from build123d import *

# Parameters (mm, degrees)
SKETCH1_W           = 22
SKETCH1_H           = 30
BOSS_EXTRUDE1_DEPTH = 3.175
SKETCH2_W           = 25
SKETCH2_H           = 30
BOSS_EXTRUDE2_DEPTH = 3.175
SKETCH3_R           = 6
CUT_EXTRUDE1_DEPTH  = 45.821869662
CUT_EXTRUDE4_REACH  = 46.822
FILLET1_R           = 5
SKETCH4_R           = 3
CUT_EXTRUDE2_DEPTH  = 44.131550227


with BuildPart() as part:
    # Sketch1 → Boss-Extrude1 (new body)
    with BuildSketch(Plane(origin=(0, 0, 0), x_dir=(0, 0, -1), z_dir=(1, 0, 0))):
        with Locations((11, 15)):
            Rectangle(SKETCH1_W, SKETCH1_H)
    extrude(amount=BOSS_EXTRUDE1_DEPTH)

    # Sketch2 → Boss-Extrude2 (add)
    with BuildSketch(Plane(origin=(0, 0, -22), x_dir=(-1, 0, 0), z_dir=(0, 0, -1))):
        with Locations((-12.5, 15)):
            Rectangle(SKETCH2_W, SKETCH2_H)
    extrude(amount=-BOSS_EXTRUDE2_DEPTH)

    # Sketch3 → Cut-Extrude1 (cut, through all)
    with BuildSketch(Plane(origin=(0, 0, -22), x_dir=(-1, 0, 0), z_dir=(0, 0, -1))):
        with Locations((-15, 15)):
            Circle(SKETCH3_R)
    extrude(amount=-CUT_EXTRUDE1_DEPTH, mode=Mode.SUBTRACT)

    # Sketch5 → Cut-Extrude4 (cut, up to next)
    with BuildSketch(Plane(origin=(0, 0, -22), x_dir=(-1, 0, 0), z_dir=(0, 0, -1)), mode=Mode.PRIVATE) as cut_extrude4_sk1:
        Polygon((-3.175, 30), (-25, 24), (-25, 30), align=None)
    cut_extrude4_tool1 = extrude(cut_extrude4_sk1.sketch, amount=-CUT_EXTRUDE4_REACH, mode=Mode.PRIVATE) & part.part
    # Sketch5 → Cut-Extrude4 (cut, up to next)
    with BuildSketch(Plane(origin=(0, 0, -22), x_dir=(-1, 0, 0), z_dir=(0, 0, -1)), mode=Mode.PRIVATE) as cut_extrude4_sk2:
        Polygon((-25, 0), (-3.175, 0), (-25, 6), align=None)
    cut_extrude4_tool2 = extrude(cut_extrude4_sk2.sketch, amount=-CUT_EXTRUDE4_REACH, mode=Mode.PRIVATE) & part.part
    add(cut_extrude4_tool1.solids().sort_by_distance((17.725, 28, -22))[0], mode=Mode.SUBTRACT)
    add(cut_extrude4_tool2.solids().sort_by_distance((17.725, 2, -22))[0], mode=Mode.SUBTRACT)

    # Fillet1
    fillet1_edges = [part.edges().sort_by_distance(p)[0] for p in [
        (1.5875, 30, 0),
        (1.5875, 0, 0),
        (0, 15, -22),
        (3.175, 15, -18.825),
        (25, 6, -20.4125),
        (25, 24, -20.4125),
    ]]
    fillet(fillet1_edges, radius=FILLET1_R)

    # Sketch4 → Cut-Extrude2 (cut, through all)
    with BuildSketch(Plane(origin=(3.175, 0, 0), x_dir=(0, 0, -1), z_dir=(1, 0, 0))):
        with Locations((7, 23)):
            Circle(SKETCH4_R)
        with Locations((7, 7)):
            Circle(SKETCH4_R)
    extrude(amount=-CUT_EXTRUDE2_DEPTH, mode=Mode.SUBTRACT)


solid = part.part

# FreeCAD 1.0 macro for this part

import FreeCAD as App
import Part
import Sketcher
Q = App.Units.Quantity


def edges_at(feature, points):
    """Names of the edges that pass closest to the given points."""
    edges = feature.Shape.Edges
    near = lambda p: min(range(len(edges)), key=lambda i: edges[i].distToShape(Part.Vertex(*p))[0])
    return sorted({f"Edge{near(p) + 1}" for p in points})


def add_polygon(sketch, points):
    """Adds a closed chain of lines whose ends are joined by coincident constraints."""
    first, n = sketch.GeometryCount, len(points)
    for a, b in zip(points, points[1:] + points[:1]):
        sketch.addGeometry(Part.LineSegment(App.Vector(*a, 0), App.Vector(*b, 0)), False)
    for i in range(n):
        sketch.addConstraint(Sketcher.Constraint("Coincident", first + i, 2, first + (i + 1) % n, 1))

doc = App.newDocument("Part")
params = doc.addObject("Spreadsheet::Sheet", "Params")
for row, (alias, value) in enumerate([
    ("sketch1_width", "30 mm"),
    ("sketch1_height", "22 mm"),
    ("pad1_length", "3.175 mm"),
    ("sketch2_width", "25 mm"),
    ("sketch2_height", "30 mm"),
    ("pad2_length", "3.175 mm"),
    ("sketch3_diameter", "12 mm"),
    ("sketch4_height", "6 mm"),
    ("sketch5_height", "6 mm"),
    ("fillet_radius", "5 mm"),
    ("sketch6_diameter", "6 mm"),
], start=1):
    params.set(f"A{row}", alias)
    params.set(f"B{row}", "=" + value)
    params.setAlias(f"B{row}", alias)

body = doc.addObject("PartDesign::Body", "Body")

# Sketch on YZ plane
sketch1 = body.newObject("Sketcher::SketchObject", "Sketch")
sketch1.AttachmentSupport = (doc.getObject("YZ_Plane"), [""])
sketch1.MapMode = "FlatFace"
add_polygon(sketch1, [(30, 0), (0, 0), (0, -22), (30, -22)])  # lines 0-3
sketch1.addConstraint(Sketcher.Constraint("Horizontal", 0))
sketch1.addConstraint(Sketcher.Constraint("Vertical", 1))
sketch1.addConstraint(Sketcher.Constraint("Horizontal", 2))
sketch1.addConstraint(Sketcher.Constraint("Vertical", 3))
sketch1.addConstraint(Sketcher.Constraint("Coincident", 0, 2, -1, 1))
sketch1.addConstraint(Sketcher.Constraint("DistanceX", 0, 2, 0, 1, Q("30 mm")))
sketch1.addConstraint(Sketcher.Constraint("DistanceY", 1, 2, 1, 1, Q("22 mm")))
sketch1.setExpression("Constraints[9]", "Params.sketch1_width")
sketch1.setExpression("Constraints[10]", "Params.sketch1_height")
pad1 = body.newObject("PartDesign::Pad", "Pad")
pad1.Profile = sketch1
pad1.setExpression("Length", "Params.pad1_length")

# Sketch on XY plane
sketch2 = body.newObject("Sketcher::SketchObject", "Sketch001")
sketch2.AttachmentSupport = (doc.getObject("XY_Plane"), [""])
sketch2.MapMode = "FlatFace"
sketch2.AttachmentOffset = App.Placement(App.Vector(0, 0, -22), App.Rotation())
add_polygon(sketch2, [(25, 30), (25, 0), (0, 0), (0, 30)])  # lines 0-3
sketch2.addConstraint(Sketcher.Constraint("Vertical", 0))
sketch2.addConstraint(Sketcher.Constraint("Horizontal", 1))
sketch2.addConstraint(Sketcher.Constraint("Vertical", 2))
sketch2.addConstraint(Sketcher.Constraint("Horizontal", 3))
sketch2.addConstraint(Sketcher.Constraint("Coincident", 1, 2, -1, 1))
sketch2.addConstraint(Sketcher.Constraint("DistanceX", 1, 2, 1, 1, Q("25 mm")))
sketch2.addConstraint(Sketcher.Constraint("DistanceY", 0, 2, 0, 1, Q("30 mm")))
sketch2.setExpression("Constraints[9]", "Params.sketch2_width")
sketch2.setExpression("Constraints[10]", "Params.sketch2_height")
pad2 = body.newObject("PartDesign::Pad", "Pad001")
pad2.Profile = sketch2
pad2.setExpression("Length", "Params.pad2_length")

# Sketch on XY plane
sketch3 = body.newObject("Sketcher::SketchObject", "Sketch002")
sketch3.AttachmentSupport = (doc.getObject("XY_Plane"), [""])
sketch3.MapMode = "FlatFace"
sketch3.AttachmentOffset = App.Placement(App.Vector(0, 0, -22), App.Rotation())
sketch3.addGeometry(Part.Circle(App.Vector(15, 15, 0), App.Vector(0, 0, 1), 6), False)
sketch3.addConstraint(Sketcher.Constraint("Diameter", 0, Q("12 mm")))
sketch3.addConstraint(Sketcher.Constraint("DistanceX", -1, 1, 0, 3, Q("15 mm")))
sketch3.addConstraint(Sketcher.Constraint("DistanceY", -1, 1, 0, 3, Q("15 mm")))
sketch3.setExpression("Constraints[0]", "Params.sketch3_diameter")
pocket1 = body.newObject("PartDesign::Pocket", "Pocket")
pocket1.Profile = sketch3
pocket1.Type = "ThroughAll"
pocket1.Reversed = True

# Sketch on XY plane
sketch4 = body.newObject("Sketcher::SketchObject", "Sketch003")
sketch4.AttachmentSupport = (doc.getObject("XY_Plane"), [""])
sketch4.MapMode = "FlatFace"
sketch4.AttachmentOffset = App.Placement(App.Vector(0, 0, -22), App.Rotation())
add_polygon(sketch4, [(25, 24), (3, 30), (25, 30)])  # lines 0-2
sketch4.addConstraint(Sketcher.Constraint("Horizontal", 1))
sketch4.addConstraint(Sketcher.Constraint("Vertical", 2))
sketch4.addConstraint(Sketcher.Constraint("DistanceY", 2, 2, 2, 1, Q("6 mm")))
sketch4.addConstraint(Sketcher.Constraint("DistanceY", -1, 1, 0, 2, Q("30 mm")))
sketch4.addConstraint(Sketcher.Constraint("DistanceX", -1, 1, 1, 2, Q("25 mm")))
sketch4.addConstraint(Sketcher.Constraint("DistanceX", 1, 1, 1, 2, Q("21.825 mm")))
sketch4.setExpression("Constraints[5]", "Params.sketch4_height")
pocket2 = body.newObject("PartDesign::Pocket", "Pocket001")
pocket2.Profile = sketch4
pocket2.Type = "UpToFirst"
pocket2.Reversed = True

# Sketch on XY plane
sketch5 = body.newObject("Sketcher::SketchObject", "Sketch004")
sketch5.AttachmentSupport = (doc.getObject("XY_Plane"), [""])
sketch5.MapMode = "FlatFace"
sketch5.AttachmentOffset = App.Placement(App.Vector(0, 0, -22), App.Rotation())
add_polygon(sketch5, [(25, 0), (3, 0), (25, 6)])  # lines 0-2
sketch5.addConstraint(Sketcher.Constraint("Horizontal", 0))
sketch5.addConstraint(Sketcher.Constraint("Vertical", 2))
sketch5.addConstraint(Sketcher.Constraint("PointOnObject", 0, 2, -1))
sketch5.addConstraint(Sketcher.Constraint("DistanceY", 2, 2, 2, 1, Q("6 mm")))
sketch5.addConstraint(Sketcher.Constraint("DistanceX", -1, 1, 1, 2, Q("25 mm")))
sketch5.addConstraint(Sketcher.Constraint("DistanceX", 0, 2, 0, 1, Q("21.825 mm")))
sketch5.setExpression("Constraints[6]", "Params.sketch5_height")
pocket3 = body.newObject("PartDesign::Pocket", "Pocket002")
pocket3.Profile = sketch5
pocket3.Type = "UpToFirst"
pocket3.Reversed = True
doc.recompute()

fillet = body.newObject("PartDesign::Fillet", "Fillet")
fillet.Base = (pocket3, edges_at(pocket3, [
    (1.587, 30, 0),
    (1.587, 0, 0),
    (0, 15, -22),
    (3.175, 15, -18.825),
    (25, 6, -20.413),
    (25, 24, -20.413),
]))
fillet.setExpression("Radius", "Params.fillet_radius")

# Sketch on YZ plane
sketch6 = body.newObject("Sketcher::SketchObject", "Sketch005")
sketch6.AttachmentSupport = (doc.getObject("YZ_Plane"), [""])
sketch6.MapMode = "FlatFace"
sketch6.AttachmentOffset = App.Placement(App.Vector(0, 0, 3.175), App.Rotation())
sketch6.addGeometry(Part.Circle(App.Vector(23, -7, 0), App.Vector(0, 0, 1), 3), False)
sketch6.addGeometry(Part.Circle(App.Vector(7, -7, 0), App.Vector(0, 0, 1), 3), False)
sketch6.addConstraint(Sketcher.Constraint("Equal", 0, 1))
sketch6.addConstraint(Sketcher.Constraint("Horizontal", 0, 3, 1, 3))
sketch6.addConstraint(Sketcher.Constraint("Diameter", 0, Q("6 mm")))
sketch6.addConstraint(Sketcher.Constraint("DistanceX", -1, 1, 0, 3, Q("23 mm")))
sketch6.addConstraint(Sketcher.Constraint("DistanceY", 0, 3, -1, 1, Q("7 mm")))
sketch6.addConstraint(Sketcher.Constraint("DistanceX", -1, 1, 1, 3, Q("7 mm")))
sketch6.setExpression("Constraints[2]", "Params.sketch6_diameter")
pocket4 = body.newObject("PartDesign::Pocket", "Pocket003")
pocket4.Profile = sketch6
pocket4.Type = "ThroughAll"

doc.recompute()
